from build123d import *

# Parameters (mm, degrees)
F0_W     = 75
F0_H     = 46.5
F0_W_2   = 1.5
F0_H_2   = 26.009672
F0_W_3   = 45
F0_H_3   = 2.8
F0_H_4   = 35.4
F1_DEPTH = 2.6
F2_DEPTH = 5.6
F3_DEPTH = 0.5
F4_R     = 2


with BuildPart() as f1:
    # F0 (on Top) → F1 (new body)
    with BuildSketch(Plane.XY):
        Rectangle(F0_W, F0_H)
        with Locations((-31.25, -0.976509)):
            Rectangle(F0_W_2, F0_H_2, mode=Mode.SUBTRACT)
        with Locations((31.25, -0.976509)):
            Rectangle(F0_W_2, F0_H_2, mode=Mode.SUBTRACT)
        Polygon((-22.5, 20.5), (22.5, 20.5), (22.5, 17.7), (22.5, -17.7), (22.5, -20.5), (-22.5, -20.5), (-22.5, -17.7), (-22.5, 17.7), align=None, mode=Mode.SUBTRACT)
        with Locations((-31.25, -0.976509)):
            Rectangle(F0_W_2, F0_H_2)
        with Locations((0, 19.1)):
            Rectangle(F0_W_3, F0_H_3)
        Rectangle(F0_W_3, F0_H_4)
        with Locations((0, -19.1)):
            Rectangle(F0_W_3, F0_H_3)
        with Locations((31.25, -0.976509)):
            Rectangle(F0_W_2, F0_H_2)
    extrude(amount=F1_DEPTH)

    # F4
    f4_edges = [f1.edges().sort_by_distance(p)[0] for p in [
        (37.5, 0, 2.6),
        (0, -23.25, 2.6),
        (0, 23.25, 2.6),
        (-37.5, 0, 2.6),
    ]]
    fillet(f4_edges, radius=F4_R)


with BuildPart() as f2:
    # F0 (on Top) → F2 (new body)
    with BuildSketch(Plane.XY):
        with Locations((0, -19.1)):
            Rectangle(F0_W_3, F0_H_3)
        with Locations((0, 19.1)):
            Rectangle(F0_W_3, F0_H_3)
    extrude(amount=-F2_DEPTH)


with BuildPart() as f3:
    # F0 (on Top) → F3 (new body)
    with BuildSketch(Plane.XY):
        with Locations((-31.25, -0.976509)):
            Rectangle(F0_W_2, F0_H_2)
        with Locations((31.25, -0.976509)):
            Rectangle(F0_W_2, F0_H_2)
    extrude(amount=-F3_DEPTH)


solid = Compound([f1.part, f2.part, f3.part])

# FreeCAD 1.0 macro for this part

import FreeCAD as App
import Part
import Sketcher
from FreeCAD import Vector


def edges_at(feature, points):
    """Names of the edges that pass closest to the given points."""
    edges = feature.Shape.Edges
    near = lambda p: min(range(len(edges)), key=lambda i: edges[i].distToShape(Part.Vertex(*p))[0])
    return sorted({f"Edge{near(p) + 1}" for p in points})

doc = App.newDocument("Part")
body = doc.addObject("PartDesign::Body", "Body")

# Sketch on XY plane
sketch1 = body.newObject("Sketcher::SketchObject", "Sketch")
sketch1.AttachmentSupport = (doc.getObject("XY_Plane"), [""])
sketch1.MapMode = "FlatFace"
sketch1.addGeometry([
    Part.LineSegment(Vector(-37.5, 23.25, 0), Vector(-37.5, -23.25, 0)),
    Part.LineSegment(Vector(-37.5, -23.25, 0), Vector(37.5, -23.25, 0)),
    Part.LineSegment(Vector(37.5, -23.25, 0), Vector(37.5, 23.25, 0)),
    Part.LineSegment(Vector(37.5, 23.25, 0), Vector(-37.5, 23.25, 0)),
], False)
sketch1.addConstraint([
    Sketcher.Constraint("Coincident", 0, 2, 1, 1),
    Sketcher.Constraint("Coincident", 1, 2, 2, 1),
    Sketcher.Constraint("Coincident", 2, 2, 3, 1),
    Sketcher.Constraint("Coincident", 3, 2, 0, 1),
    Sketcher.Constraint("Vertical", 0),
    Sketcher.Constraint("Horizontal", 1),
    Sketcher.Constraint("Vertical", 2),
    Sketcher.Constraint("Horizontal", 3),
    Sketcher.Constraint("Symmetric", 0, 2, 2, 2, -1, 1),
    Sketcher.Constraint("DistanceX", 1, 1, 1, 2, 75.0),
    Sketcher.Constraint("DistanceY", 0, 2, 0, 1, 46.5),
])
pad1 = body.newObject("PartDesign::Pad", "Pad")
pad1.Profile = sketch1
pad1.Length = 2.6
doc.recompute()

fillet = body.newObject("PartDesign::Fillet", "Fillet")
fillet.Base = (pad1, edges_at(pad1, [
    (37.5, 0, 2.6),
    (0, -23.25, 2.6),
    (0, 23.25, 2.6),
    (-37.5, 0, 2.6),
]))
fillet.Radius = 2
body2 = doc.addObject("PartDesign::Body", "Body001")
body2.AllowCompound = True

# Sketch on XY plane
sketch2 = body2.newObject("Sketcher::SketchObject", "Sketch001")
sketch2.AttachmentSupport = (doc.getObject("XY_Plane001"), [""])
sketch2.MapMode = "FlatFace"
sketch2.addGeometry([
    Part.LineSegment(Vector(-22.5, -17.7, 0), Vector(-22.5, -20.5, 0)),  # 0
    Part.LineSegment(Vector(-22.5, -20.5, 0), Vector(22.5, -20.5, 0)),  # 1
    Part.LineSegment(Vector(22.5, -20.5, 0), Vector(22.5, -17.7, 0)),  # 2
    Part.LineSegment(Vector(22.5, -17.7, 0), Vector(-22.5, -17.7, 0)),  # 3
    Part.LineSegment(Vector(-22.5, 20.5, 0), Vector(-22.5, 17.7, 0)),  # 4
    Part.LineSegment(Vector(-22.5, 17.7, 0), Vector(22.5, 17.7, 0)),  # 5
    Part.LineSegment(Vector(22.5, 17.7, 0), Vector(22.5, 20.5, 0)),  # 6
    Part.LineSegment(Vector(22.5, 20.5, 0), Vector(-22.5, 20.5, 0)),  # 7
], False)
sketch2.addConstraint([
    Sketcher.Constraint("Coincident", 0, 2, 1, 1),
    Sketcher.Constraint("Coincident", 1, 2, 2, 1),
    Sketcher.Constraint("Coincident", 2, 2, 3, 1),
    Sketcher.Constraint("Coincident", 3, 2, 0, 1),
    Sketcher.Constraint("Coincident", 4, 2, 5, 1),
    Sketcher.Constraint("Coincident", 5, 2, 6, 1),
    Sketcher.Constraint("Coincident", 6, 2, 7, 1),
    Sketcher.Constraint("Coincident", 7, 2, 4, 1),
    Sketcher.Constraint("Vertical", 0),
    Sketcher.Constraint("Horizontal", 1),
    Sketcher.Constraint("Vertical", 2),
    Sketcher.Constraint("Horizontal", 3),
    Sketcher.Constraint("Vertical", 4),
    Sketcher.Constraint("Horizontal", 5),
    Sketcher.Constraint("Vertical", 6),
    Sketcher.Constraint("Horizontal", 7),
    Sketcher.Constraint("Symmetric", 2, 2, 4, 2, -1, 1),
    Sketcher.Constraint("Symmetric", 0, 2, 6, 2, -1, 1),
    Sketcher.Constraint("Vertical", 3, 2, 4, 2),
    Sketcher.Constraint("DistanceX", 1, 1, 1, 2, 45.0),
    Sketcher.Constraint("DistanceY", 0, 2, 0, 1, 2.8),
    Sketcher.Constraint("DistanceY", 1, 2, 6, 2, 41.0),
])
pad2 = body2.newObject("PartDesign::Pad", "Pad001")
pad2.Profile = sketch2
pad2.Length = 5.6
pad2.Reversed = True
body3 = doc.addObject("PartDesign::Body", "Body002")
body3.AllowCompound = True

# Sketch on XY plane
sketch3 = body3.newObject("Sketcher::SketchObject", "Sketch002")
sketch3.AttachmentSupport = (doc.getObject("XY_Plane002"), [""])
sketch3.MapMode = "FlatFace"
sketch3.addGeometry([
    Part.LineSegment(Vector(-32, 12.028327, 0), Vector(-32, -13.981345, 0)),  # 0
    Part.LineSegment(Vector(-32, -13.981345, 0), Vector(-30.5, -13.981345, 0)),  # 1
    Part.LineSegment(Vector(-30.5, -13.981345, 0), Vector(-30.5, 12.028327, 0)),  # 2
    Part.LineSegment(Vector(-30.5, 12.028327, 0), Vector(-32, 12.028327, 0)),  # 3
    Part.LineSegment(Vector(30.5, 12.028327, 0), Vector(30.5, -13.981345, 0)),  # 4
    Part.LineSegment(Vector(30.5, -13.981345, 0), Vector(32, -13.981345, 0)),  # 5
    Part.LineSegment(Vector(32, -13.981345, 0), Vector(32, 12.028327, 0)),  # 6
    Part.LineSegment(Vector(32, 12.028327, 0), Vector(30.5, 12.028327, 0)),  # 7
], False)
sketch3.addConstraint([
    Sketcher.Constraint("Coincident", 0, 2, 1, 1),
    Sketcher.Constraint("Coincident", 1, 2, 2, 1),
    Sketcher.Constraint("Coincident", 2, 2, 3, 1),
    Sketcher.Constraint("Coincident", 3, 2, 0, 1),
    Sketcher.Constraint("Coincident", 4, 2, 5, 1),
    Sketcher.Constraint("Coincident", 5, 2, 6, 1),
    Sketcher.Constraint("Coincident", 6, 2, 7, 1),
    Sketcher.Constraint("Coincident", 7, 2, 4, 1),
    Sketcher.Constraint("Vertical", 0),
    Sketcher.Constraint("Horizontal", 1),
    Sketcher.Constraint("Vertical", 2),
    Sketcher.Constraint("Horizontal", 3),
    Sketcher.Constraint("Vertical", 4),
    Sketcher.Constraint("Horizontal", 5),
    Sketcher.Constraint("Vertical", 6),
    Sketcher.Constraint("Horizontal", 7),
    Sketcher.Constraint("Symmetric", 1, 2, 4, 2, -2),
    Sketcher.Constraint("Symmetric", 3, 2, 6, 2, -2),
    Sketcher.Constraint("DistanceX", 1, 1, 1, 2, 1.5),
    Sketcher.Constraint("DistanceX", 0, 2, -1, 1, 32.0),
    Sketcher.Constraint("DistanceY", 0, 2, 0, 1, 26.009672),
    Sketcher.Constraint("DistanceY", 0, 2, -1, 1, 13.981345),
])
pad3 = body3.newObject("PartDesign::Pad", "Pad002")
pad3.Profile = sketch3
pad3.Length = 0.5
pad3.Reversed = True

doc.recompute()
